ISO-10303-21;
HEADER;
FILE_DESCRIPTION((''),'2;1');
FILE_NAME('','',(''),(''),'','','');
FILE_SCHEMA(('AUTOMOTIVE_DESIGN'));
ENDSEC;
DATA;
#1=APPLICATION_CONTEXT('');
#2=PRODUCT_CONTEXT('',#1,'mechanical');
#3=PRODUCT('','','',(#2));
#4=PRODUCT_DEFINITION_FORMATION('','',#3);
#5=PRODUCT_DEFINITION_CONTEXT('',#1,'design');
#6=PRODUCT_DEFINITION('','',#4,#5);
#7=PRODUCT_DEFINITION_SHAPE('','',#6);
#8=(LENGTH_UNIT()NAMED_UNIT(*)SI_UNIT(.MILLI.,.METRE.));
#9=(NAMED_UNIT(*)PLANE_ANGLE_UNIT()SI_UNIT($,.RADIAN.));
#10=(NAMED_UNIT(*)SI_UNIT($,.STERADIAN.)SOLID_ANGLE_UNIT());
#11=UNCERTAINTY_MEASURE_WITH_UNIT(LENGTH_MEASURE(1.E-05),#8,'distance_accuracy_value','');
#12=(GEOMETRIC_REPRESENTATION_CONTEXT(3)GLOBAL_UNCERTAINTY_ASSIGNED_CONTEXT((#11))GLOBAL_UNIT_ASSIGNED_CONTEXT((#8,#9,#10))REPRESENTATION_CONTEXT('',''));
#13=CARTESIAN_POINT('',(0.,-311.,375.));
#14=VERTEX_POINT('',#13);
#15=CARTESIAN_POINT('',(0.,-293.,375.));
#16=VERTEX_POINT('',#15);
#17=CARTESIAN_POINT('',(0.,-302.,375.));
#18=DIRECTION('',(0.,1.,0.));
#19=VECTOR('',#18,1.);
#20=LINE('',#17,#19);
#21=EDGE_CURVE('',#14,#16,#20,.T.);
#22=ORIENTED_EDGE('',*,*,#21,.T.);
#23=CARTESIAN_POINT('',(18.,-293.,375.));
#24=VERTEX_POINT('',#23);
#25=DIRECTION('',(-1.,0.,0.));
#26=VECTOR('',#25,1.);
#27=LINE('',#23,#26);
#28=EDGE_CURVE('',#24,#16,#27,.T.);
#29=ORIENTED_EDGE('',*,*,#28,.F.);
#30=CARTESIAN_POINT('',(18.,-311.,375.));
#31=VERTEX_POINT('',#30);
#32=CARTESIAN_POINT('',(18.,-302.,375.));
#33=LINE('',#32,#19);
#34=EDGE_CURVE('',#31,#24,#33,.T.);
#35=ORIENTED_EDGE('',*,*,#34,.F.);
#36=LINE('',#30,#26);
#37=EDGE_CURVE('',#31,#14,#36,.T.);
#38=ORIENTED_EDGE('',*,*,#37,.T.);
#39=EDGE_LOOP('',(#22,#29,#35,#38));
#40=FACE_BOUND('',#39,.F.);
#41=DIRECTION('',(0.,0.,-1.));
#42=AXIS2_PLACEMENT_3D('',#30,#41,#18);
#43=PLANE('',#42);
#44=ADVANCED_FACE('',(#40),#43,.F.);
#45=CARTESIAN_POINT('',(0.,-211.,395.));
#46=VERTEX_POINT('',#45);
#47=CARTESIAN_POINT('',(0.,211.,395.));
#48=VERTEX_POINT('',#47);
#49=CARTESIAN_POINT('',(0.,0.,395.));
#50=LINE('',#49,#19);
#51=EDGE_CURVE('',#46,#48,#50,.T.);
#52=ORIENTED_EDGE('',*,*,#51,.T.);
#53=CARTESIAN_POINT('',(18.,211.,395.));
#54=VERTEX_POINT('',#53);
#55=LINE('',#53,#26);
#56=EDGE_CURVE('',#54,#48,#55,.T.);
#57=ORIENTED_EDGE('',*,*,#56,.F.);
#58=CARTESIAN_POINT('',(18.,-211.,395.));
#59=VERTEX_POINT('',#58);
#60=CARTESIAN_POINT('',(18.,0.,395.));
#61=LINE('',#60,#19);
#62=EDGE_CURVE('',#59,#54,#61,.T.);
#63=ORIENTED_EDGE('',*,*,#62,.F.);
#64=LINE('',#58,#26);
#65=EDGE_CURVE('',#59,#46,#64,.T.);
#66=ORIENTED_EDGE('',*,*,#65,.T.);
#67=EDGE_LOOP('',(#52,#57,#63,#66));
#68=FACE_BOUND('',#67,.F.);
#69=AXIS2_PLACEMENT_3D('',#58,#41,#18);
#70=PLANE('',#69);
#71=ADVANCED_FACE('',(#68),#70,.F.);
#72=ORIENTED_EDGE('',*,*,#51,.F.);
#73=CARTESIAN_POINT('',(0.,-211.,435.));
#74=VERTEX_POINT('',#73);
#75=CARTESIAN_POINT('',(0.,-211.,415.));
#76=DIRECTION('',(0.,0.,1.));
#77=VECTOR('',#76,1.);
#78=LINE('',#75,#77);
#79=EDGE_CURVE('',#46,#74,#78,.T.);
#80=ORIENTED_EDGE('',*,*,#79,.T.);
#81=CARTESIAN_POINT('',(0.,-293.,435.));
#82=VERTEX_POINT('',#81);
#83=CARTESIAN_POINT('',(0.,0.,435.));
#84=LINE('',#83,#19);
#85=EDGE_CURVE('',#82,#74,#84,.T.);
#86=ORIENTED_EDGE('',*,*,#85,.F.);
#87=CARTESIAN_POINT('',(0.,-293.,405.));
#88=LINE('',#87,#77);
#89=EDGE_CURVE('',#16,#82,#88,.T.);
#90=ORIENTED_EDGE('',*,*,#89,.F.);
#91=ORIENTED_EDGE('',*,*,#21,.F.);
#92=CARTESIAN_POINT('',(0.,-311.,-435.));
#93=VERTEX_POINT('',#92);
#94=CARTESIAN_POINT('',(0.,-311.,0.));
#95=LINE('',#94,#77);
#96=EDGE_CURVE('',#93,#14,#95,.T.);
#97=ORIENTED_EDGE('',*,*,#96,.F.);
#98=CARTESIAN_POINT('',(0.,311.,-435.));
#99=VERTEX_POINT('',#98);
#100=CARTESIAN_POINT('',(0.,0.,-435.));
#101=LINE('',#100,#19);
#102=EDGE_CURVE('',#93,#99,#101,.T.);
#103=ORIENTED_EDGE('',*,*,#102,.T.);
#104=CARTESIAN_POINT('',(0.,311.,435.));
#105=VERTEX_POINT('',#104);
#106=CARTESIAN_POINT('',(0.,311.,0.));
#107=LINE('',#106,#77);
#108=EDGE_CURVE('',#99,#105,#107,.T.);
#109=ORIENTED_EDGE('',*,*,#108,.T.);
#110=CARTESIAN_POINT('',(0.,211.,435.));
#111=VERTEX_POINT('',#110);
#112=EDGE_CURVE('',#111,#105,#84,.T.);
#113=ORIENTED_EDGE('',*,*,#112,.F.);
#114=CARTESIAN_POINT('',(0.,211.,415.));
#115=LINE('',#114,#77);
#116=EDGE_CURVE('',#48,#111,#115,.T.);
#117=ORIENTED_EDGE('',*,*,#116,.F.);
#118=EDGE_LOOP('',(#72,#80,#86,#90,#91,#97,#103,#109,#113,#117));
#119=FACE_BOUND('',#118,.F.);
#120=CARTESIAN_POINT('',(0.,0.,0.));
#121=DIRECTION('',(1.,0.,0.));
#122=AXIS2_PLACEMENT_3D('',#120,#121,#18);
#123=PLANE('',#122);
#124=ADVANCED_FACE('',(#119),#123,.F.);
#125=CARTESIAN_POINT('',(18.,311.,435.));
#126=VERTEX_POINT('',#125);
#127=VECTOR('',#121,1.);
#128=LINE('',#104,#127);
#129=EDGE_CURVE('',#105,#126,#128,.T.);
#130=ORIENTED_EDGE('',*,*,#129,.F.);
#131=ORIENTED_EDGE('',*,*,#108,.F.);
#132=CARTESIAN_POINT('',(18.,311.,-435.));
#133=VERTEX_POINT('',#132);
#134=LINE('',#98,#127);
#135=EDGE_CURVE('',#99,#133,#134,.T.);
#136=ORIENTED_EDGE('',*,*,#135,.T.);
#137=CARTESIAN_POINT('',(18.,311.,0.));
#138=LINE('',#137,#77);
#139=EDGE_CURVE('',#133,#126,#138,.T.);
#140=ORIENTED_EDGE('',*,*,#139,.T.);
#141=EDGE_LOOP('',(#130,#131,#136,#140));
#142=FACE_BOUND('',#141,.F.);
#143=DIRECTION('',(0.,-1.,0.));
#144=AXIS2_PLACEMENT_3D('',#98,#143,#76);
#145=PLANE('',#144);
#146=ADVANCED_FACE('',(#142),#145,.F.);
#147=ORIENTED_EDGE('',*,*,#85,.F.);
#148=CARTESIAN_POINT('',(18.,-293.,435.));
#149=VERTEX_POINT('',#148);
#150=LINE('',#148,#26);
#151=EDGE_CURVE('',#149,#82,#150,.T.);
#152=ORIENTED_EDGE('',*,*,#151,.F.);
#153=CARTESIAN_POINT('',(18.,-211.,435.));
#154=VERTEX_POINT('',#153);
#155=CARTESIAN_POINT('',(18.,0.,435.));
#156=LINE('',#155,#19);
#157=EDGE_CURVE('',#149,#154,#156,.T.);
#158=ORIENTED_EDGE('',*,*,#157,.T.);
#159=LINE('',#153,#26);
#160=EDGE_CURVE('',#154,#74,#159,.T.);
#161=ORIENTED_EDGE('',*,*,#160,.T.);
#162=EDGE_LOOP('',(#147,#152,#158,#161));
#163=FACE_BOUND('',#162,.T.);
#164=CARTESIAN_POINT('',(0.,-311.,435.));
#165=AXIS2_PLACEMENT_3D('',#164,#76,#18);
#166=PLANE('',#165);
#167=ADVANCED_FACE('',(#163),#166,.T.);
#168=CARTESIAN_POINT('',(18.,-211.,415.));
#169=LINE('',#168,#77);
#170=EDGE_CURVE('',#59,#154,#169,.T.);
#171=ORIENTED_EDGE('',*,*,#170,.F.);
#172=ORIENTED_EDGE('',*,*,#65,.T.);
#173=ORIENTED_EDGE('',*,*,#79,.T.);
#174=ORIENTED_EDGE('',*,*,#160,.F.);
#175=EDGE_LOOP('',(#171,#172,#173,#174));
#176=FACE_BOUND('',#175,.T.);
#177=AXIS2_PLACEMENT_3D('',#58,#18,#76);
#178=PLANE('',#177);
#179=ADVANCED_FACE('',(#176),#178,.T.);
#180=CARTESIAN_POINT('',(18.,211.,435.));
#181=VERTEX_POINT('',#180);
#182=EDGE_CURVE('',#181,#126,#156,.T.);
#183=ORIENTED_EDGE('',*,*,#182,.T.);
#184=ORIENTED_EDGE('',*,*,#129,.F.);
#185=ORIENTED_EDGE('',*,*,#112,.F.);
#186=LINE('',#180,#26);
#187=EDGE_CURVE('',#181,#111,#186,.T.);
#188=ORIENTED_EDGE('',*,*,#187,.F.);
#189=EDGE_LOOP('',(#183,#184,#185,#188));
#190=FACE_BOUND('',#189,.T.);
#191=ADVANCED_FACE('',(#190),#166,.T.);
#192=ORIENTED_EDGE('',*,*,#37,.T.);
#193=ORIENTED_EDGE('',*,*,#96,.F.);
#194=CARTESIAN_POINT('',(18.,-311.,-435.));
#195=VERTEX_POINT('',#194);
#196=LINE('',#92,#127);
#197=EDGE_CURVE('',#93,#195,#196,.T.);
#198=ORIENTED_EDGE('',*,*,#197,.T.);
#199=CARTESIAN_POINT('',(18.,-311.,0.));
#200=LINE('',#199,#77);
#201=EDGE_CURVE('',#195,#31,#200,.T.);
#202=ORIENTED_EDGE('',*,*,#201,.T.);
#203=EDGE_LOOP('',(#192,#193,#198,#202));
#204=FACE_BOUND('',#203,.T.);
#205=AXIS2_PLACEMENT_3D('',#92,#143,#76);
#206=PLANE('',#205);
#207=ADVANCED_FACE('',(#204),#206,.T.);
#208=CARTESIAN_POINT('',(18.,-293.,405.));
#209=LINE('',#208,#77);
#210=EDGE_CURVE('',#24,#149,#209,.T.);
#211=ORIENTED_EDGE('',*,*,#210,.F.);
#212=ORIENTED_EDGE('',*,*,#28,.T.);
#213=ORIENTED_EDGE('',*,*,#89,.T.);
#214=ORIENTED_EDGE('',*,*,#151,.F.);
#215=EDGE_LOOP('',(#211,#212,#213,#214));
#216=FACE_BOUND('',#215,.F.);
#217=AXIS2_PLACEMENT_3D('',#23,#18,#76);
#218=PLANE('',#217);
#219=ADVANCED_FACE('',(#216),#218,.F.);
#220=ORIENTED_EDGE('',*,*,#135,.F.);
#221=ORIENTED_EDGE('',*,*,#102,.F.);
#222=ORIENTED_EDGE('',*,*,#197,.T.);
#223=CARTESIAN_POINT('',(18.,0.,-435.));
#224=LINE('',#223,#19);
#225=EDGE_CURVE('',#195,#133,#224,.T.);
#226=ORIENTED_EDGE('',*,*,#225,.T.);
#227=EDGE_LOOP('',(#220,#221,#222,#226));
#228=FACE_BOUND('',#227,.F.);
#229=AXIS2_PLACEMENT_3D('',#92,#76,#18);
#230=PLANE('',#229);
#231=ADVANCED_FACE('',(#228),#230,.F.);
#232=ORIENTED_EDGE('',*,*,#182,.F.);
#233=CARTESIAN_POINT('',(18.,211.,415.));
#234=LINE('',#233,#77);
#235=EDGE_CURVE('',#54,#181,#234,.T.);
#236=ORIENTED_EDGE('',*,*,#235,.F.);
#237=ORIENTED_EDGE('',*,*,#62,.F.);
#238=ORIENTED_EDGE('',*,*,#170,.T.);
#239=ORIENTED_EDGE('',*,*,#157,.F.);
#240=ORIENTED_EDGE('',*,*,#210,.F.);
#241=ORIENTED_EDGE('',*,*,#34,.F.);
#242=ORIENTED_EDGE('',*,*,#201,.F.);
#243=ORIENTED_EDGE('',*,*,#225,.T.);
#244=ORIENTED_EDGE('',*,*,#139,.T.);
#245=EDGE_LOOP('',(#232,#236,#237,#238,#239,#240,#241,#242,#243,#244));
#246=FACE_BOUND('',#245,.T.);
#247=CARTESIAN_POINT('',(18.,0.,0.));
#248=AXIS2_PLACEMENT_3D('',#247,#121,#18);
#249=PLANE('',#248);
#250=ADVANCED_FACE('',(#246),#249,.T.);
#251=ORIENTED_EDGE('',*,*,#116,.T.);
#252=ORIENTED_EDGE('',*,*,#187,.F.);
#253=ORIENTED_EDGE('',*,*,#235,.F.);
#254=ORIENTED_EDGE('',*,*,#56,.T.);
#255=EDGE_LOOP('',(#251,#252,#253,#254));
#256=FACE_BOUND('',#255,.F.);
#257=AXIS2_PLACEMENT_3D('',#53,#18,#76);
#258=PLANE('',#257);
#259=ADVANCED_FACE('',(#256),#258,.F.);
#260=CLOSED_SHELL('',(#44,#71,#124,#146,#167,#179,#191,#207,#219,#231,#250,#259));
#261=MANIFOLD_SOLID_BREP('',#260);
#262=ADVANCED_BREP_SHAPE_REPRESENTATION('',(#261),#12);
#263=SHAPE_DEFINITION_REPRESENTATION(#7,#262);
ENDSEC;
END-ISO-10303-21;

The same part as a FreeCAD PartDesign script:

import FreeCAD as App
import Part
import Sketcher

doc = App.newDocument("Part")
body = doc.addObject("PartDesign::Body", "Body")

# Sketch on YZ plane
sketch1 = body.newObject("Sketcher::SketchObject", "Sketch")
sketch1.AttachmentSupport = (doc.getObject("YZ_Plane"), [""])
sketch1.MapMode = "FlatFace"
sketch1.addGeometry([
    Part.LineSegment(App.Vector(-311, 435, 0), App.Vector(-311, -435, 0)),
    Part.LineSegment(App.Vector(-311, -435, 0), App.Vector(311, -435, 0)),
    Part.LineSegment(App.Vector(311, -435, 0), App.Vector(311, 435, 0)),
    Part.LineSegment(App.Vector(311, 435, 0), App.Vector(-311, 435, 0)),
], False)
sketch1.addConstraint([
    Sketcher.Constraint("Coincident", 0, 2, 1, 1),
    Sketcher.Constraint("Coincident", 1, 2, 2, 1),
    Sketcher.Constraint("Coincident", 2, 2, 3, 1),
    Sketcher.Constraint("Coincident", 3, 2, 0, 1),
    Sketcher.Constraint("Vertical", 0),
    Sketcher.Constraint("Horizontal", 1),
    Sketcher.Constraint("Vertical", 2),
    Sketcher.Constraint("Horizontal", 3),
    Sketcher.Constraint("Symmetric", 0, 2, 2, 2, -1, 1),
    Sketcher.Constraint("DistanceX", 1, 1, 1, 2, 622.0),
    Sketcher.Constraint("DistanceY", 0, 2, 0, 1, 870.0),
])
pad1 = body.newObject("PartDesign::Pad", "Pad")
pad1.Profile = sketch1
pad1.Length = 18

# Sketch on YZ plane
sketch2 = body.newObject("Sketcher::SketchObject", "Sketch001")
sketch2.AttachmentSupport = (doc.getObject("YZ_Plane"), [""])
sketch2.MapMode = "FlatFace"
sketch2.AttachmentOffset = App.Placement(App.Vector(0, 0, 18), App.Rotation())
sketch2.addGeometry([
    Part.LineSegment(App.Vector(-311, 435, 0), App.Vector(-311, 375, 0)),  # 0
    Part.LineSegment(App.Vector(-311, 375, 0), App.Vector(-293, 375, 0)),  # 1
    Part.LineSegment(App.Vector(-293, 375, 0), App.Vector(-293, 435, 0)),  # 2
    Part.LineSegment(App.Vector(-293, 435, 0), App.Vector(-311, 435, 0)),  # 3
    Part.LineSegment(App.Vector(-211, 435, 0), App.Vector(-211, 395, 0)),  # 4
    Part.LineSegment(App.Vector(-211, 395, 0), App.Vector(211, 395, 0)),  # 5
    Part.LineSegment(App.Vector(211, 395, 0), App.Vector(211, 435, 0)),  # 6
    Part.LineSegment(App.Vector(211, 435, 0), App.Vector(-211, 435, 0)),  # 7
], False)
sketch2.addConstraint([
    Sketcher.Constraint("Coincident", 0, 2, 1, 1),
    Sketcher.Constraint("Coincident", 1, 2, 2, 1),
    Sketcher.Constraint("Coincident", 2, 2, 3, 1),
    Sketcher.Constraint("Coincident", 3, 2, 0, 1),
    Sketcher.Constraint("Coincident", 4, 2, 5, 1),
    Sketcher.Constraint("Coincident", 5, 2, 6, 1),
    Sketcher.Constraint("Coincident", 6, 2, 7, 1),
    Sketcher.Constraint("Coincident", 7, 2, 4, 1),
    Sketcher.Constraint("Vertical", 0),
    Sketcher.Constraint("Horizontal", 1),
    Sketcher.Constraint("Vertical", 2),
    Sketcher.Constraint("Horizontal", 3),
    Sketcher.Constraint("Vertical", 4),
    Sketcher.Constraint("Horizontal", 5),
    Sketcher.Constraint("Vertical", 6),
    Sketcher.Constraint("Horizontal", 7),
    Sketcher.Constraint("Horizontal", 3, 2, 6, 2),
    Sketcher.Constraint("DistanceX", 1, 1, 1, 2, 18.0),
    Sketcher.Constraint("DistanceX", 5, 1, 5, 2, 422.0),
    Sketcher.Constraint("DistanceY", 0, 2, 0, 1, 60.0),
    Sketcher.Constraint("DistanceY", 4, 2, 4, 1, 40.0),
    Sketcher.Constraint("DistanceX", 0, 2, -1, 1, 311.0),
    Sketcher.Constraint("DistanceY", -1, 1, 0, 2, 375.0),
    Sketcher.Constraint("DistanceX", 4, 2, -1, 1, 211.0),
])
pocket1 = body.newObject("PartDesign::Pocket", "Pocket")
pocket1.Profile = sketch2
pocket1.Length = 18

doc.recompute()
